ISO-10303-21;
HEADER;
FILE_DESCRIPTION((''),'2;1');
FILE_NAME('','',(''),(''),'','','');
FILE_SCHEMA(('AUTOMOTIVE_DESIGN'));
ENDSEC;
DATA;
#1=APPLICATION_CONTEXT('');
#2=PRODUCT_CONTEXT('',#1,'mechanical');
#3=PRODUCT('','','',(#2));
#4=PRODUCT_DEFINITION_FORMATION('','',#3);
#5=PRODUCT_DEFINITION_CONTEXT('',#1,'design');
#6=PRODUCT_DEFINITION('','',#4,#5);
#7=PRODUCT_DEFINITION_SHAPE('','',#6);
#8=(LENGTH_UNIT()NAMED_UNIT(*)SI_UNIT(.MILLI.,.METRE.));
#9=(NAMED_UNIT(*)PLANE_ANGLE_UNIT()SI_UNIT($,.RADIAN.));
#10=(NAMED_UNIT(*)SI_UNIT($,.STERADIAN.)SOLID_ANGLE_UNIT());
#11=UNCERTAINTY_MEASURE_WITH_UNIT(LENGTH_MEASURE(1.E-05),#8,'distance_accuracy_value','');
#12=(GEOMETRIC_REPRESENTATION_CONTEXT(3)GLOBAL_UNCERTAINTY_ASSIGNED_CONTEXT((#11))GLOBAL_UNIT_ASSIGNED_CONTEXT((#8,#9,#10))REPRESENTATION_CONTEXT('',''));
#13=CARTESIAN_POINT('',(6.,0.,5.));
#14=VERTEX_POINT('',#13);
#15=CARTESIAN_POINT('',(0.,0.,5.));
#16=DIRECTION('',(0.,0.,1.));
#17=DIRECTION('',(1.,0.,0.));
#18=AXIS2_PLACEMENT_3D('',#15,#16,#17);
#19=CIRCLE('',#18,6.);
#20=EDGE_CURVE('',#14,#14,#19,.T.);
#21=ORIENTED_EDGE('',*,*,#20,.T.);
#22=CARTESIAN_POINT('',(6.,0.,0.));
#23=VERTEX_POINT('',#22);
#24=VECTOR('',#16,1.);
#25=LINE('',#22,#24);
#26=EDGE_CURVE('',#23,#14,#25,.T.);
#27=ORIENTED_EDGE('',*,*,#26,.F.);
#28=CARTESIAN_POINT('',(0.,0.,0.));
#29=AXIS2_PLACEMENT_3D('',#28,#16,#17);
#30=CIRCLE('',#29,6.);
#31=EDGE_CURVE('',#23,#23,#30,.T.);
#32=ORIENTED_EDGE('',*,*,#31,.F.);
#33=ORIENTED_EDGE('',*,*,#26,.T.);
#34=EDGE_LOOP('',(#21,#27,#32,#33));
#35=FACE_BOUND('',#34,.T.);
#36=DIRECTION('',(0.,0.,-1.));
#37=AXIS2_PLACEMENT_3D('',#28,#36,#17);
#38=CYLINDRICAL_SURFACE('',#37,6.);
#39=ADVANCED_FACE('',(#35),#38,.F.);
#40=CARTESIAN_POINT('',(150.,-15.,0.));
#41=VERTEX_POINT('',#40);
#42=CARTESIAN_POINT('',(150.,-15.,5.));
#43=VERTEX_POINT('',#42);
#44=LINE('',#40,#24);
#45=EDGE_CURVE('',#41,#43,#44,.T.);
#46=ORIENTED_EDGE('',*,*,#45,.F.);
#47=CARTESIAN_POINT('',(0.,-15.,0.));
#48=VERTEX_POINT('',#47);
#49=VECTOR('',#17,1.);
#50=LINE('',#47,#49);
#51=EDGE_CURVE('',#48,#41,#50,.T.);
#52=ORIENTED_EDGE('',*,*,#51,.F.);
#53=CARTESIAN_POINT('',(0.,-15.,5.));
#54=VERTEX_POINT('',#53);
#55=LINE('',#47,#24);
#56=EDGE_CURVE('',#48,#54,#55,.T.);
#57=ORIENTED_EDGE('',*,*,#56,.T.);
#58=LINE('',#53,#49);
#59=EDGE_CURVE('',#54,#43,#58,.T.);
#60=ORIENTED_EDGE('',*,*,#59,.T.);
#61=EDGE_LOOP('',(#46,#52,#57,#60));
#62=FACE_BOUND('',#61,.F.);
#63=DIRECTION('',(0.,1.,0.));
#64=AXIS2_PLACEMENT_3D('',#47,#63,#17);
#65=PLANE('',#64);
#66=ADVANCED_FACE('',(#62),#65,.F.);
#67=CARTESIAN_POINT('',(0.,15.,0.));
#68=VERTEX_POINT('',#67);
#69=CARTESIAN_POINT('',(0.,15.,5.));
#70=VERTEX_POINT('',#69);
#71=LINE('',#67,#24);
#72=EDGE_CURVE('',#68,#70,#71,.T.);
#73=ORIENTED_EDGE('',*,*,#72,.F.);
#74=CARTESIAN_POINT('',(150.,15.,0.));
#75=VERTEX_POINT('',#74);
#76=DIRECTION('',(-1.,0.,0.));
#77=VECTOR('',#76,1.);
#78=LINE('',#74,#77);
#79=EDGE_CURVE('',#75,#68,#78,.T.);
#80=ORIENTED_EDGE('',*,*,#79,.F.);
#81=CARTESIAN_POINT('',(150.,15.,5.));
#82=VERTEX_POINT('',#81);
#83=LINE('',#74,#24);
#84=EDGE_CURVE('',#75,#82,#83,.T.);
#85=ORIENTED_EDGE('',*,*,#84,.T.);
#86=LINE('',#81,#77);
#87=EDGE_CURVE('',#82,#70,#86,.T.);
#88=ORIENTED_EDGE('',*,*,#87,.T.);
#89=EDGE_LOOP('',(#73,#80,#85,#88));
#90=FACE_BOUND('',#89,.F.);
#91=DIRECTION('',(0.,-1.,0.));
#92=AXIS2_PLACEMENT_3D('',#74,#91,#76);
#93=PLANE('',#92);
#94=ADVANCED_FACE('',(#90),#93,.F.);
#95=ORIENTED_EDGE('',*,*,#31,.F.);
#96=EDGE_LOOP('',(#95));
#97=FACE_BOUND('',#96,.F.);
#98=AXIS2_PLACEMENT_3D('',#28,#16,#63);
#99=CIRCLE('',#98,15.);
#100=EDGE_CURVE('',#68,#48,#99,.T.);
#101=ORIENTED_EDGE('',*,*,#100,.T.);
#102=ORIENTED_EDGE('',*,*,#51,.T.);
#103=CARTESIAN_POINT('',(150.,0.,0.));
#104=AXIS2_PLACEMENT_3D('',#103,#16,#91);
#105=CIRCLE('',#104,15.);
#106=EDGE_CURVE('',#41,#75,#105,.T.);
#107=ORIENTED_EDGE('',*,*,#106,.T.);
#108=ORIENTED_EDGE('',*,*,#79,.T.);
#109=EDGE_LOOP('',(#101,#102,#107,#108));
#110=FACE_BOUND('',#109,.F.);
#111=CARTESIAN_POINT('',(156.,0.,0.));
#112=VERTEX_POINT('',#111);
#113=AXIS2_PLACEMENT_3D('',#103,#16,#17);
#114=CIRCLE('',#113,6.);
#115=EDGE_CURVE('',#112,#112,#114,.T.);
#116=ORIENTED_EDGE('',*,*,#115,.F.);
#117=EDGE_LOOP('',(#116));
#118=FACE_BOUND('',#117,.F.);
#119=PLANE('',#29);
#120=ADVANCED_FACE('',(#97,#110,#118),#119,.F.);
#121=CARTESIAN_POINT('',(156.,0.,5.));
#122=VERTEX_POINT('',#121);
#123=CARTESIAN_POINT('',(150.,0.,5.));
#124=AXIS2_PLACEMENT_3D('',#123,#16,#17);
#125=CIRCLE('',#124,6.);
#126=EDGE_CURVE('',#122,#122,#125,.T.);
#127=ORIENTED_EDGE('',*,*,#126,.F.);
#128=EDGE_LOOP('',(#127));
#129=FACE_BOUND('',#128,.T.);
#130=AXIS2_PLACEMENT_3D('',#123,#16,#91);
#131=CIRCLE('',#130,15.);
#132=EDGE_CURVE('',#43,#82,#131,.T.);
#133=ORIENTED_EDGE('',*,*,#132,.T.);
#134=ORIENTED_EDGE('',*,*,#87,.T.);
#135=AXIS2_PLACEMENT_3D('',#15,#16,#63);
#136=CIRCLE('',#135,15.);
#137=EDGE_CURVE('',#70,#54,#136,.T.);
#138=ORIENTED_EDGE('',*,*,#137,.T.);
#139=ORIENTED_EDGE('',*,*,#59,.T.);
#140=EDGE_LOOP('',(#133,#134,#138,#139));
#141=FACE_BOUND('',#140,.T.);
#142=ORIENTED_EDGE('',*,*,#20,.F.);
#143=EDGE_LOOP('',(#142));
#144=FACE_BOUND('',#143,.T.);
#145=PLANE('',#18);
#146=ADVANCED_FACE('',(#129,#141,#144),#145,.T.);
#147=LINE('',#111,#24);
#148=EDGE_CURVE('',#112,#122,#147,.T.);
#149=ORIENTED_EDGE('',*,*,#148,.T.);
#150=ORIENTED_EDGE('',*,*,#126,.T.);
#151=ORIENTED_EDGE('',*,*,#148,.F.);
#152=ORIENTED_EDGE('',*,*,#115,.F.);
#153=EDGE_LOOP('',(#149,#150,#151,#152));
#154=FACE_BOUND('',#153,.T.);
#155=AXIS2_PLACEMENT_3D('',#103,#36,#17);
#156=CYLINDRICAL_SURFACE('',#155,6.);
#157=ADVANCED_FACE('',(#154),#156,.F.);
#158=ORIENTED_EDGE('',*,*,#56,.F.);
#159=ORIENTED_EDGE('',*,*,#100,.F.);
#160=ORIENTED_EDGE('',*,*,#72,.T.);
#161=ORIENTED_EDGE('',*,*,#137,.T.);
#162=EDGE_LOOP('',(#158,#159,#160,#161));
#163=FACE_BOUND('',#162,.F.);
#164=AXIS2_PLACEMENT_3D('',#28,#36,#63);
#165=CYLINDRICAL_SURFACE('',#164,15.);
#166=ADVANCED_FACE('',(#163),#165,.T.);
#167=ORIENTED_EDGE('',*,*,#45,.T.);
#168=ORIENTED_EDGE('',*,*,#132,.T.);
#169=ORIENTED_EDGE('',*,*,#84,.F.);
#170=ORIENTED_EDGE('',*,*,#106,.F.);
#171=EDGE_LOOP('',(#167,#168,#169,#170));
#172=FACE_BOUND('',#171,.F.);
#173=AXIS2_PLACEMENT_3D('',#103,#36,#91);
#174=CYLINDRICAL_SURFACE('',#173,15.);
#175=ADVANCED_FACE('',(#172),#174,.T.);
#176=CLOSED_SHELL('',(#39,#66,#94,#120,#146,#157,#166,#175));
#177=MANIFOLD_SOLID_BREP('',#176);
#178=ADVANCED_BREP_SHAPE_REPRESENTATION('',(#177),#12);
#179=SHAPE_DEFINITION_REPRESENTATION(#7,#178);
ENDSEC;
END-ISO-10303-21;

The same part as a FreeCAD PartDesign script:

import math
import FreeCAD as App
import Part
import Sketcher

V = App.Vector
Q = App.Units.Quantity

doc = App.newDocument("Part")
params = doc.addObject("Spreadsheet::Sheet", "Params")
for row, (alias, value) in enumerate([
    ("sketch1_diameter", "12 mm"),
    ("sketch1_radius", "15 mm"),
    ("sketch1_width", "150 mm"),
    ("pad1_length", "5 mm"),
], start=1):
    params.set(f"A{row}", alias)
    params.set(f"B{row}", "=" + value)
    params.setAlias(f"B{row}", alias)

body = doc.addObject("PartDesign::Body", "Body")

# Sketch on XY plane
sketch1 = body.newObject("Sketcher::SketchObject", "Sketch")
sketch1.AttachmentSupport = (doc.getObject("XY_Plane"), [""])
sketch1.MapMode = "FlatFace"
sketch1.addGeometry(Part.ArcOfCircle(Part.Circle(V(0, 0, 0), V(0, 0, 1), 15), math.radians(90), math.radians(270)), False)
sketch1.addGeometry(Part.LineSegment(V(0, -15, 0), V(150, -15, 0)), False)
sketch1.addGeometry(Part.ArcOfCircle(Part.Circle(V(150, 0, 0), V(0, 0, 1), 15), math.radians(-90), math.radians(90)), False)
sketch1.addGeometry(Part.LineSegment(V(150, 15, 0), V(0, 15, 0)), False)
sketch1.addGeometry(Part.Circle(V(0, 0, 0), V(0, 0, 1), 6), False)
sketch1.addGeometry(Part.Circle(V(150, 0, 0), V(0, 0, 1), 6), False)
sketch1.addConstraint(Sketcher.Constraint("Tangent", 0, 2, 1, 1))
sketch1.addConstraint(Sketcher.Constraint("Tangent", 1, 2, 2, 1))
sketch1.addConstraint(Sketcher.Constraint("Tangent", 2, 2, 3, 1))
sketch1.addConstraint(Sketcher.Constraint("Tangent", 3, 2, 0, 1))
sketch1.addConstraint(Sketcher.Constraint("Horizontal", 1))
sketch1.addConstraint(Sketcher.Constraint("Horizontal", 3))
sketch1.addConstraint(Sketcher.Constraint("Coincident", 0, 3, -1, 1))
sketch1.addConstraint(Sketcher.Constraint("Coincident", 4, 3, -1, 1))
sketch1.addConstraint(Sketcher.Constraint("Coincident", 5, 3, 2, 3))
sketch1.addConstraint(Sketcher.Constraint("Equal", 4, 5))
sketch1.addConstraint(Sketcher.Constraint("Diameter", 4, Q("12 mm")))
sketch1.addConstraint(Sketcher.Constraint("Radius", 0, Q("15 mm")))
sketch1.addConstraint(Sketcher.Constraint("DistanceX", 1, 1, 1, 2, Q("150 mm")))
sketch1.setExpression("Constraints[10]", "Params.sketch1_diameter")
sketch1.setExpression("Constraints[11]", "Params.sketch1_radius")
sketch1.setExpression("Constraints[12]", "Params.sketch1_width")
pad1 = body.newObject("PartDesign::Pad", "Pad")
pad1.Profile = sketch1
pad1.setExpression("Length", "Params.pad1_length")

doc.recompute()
